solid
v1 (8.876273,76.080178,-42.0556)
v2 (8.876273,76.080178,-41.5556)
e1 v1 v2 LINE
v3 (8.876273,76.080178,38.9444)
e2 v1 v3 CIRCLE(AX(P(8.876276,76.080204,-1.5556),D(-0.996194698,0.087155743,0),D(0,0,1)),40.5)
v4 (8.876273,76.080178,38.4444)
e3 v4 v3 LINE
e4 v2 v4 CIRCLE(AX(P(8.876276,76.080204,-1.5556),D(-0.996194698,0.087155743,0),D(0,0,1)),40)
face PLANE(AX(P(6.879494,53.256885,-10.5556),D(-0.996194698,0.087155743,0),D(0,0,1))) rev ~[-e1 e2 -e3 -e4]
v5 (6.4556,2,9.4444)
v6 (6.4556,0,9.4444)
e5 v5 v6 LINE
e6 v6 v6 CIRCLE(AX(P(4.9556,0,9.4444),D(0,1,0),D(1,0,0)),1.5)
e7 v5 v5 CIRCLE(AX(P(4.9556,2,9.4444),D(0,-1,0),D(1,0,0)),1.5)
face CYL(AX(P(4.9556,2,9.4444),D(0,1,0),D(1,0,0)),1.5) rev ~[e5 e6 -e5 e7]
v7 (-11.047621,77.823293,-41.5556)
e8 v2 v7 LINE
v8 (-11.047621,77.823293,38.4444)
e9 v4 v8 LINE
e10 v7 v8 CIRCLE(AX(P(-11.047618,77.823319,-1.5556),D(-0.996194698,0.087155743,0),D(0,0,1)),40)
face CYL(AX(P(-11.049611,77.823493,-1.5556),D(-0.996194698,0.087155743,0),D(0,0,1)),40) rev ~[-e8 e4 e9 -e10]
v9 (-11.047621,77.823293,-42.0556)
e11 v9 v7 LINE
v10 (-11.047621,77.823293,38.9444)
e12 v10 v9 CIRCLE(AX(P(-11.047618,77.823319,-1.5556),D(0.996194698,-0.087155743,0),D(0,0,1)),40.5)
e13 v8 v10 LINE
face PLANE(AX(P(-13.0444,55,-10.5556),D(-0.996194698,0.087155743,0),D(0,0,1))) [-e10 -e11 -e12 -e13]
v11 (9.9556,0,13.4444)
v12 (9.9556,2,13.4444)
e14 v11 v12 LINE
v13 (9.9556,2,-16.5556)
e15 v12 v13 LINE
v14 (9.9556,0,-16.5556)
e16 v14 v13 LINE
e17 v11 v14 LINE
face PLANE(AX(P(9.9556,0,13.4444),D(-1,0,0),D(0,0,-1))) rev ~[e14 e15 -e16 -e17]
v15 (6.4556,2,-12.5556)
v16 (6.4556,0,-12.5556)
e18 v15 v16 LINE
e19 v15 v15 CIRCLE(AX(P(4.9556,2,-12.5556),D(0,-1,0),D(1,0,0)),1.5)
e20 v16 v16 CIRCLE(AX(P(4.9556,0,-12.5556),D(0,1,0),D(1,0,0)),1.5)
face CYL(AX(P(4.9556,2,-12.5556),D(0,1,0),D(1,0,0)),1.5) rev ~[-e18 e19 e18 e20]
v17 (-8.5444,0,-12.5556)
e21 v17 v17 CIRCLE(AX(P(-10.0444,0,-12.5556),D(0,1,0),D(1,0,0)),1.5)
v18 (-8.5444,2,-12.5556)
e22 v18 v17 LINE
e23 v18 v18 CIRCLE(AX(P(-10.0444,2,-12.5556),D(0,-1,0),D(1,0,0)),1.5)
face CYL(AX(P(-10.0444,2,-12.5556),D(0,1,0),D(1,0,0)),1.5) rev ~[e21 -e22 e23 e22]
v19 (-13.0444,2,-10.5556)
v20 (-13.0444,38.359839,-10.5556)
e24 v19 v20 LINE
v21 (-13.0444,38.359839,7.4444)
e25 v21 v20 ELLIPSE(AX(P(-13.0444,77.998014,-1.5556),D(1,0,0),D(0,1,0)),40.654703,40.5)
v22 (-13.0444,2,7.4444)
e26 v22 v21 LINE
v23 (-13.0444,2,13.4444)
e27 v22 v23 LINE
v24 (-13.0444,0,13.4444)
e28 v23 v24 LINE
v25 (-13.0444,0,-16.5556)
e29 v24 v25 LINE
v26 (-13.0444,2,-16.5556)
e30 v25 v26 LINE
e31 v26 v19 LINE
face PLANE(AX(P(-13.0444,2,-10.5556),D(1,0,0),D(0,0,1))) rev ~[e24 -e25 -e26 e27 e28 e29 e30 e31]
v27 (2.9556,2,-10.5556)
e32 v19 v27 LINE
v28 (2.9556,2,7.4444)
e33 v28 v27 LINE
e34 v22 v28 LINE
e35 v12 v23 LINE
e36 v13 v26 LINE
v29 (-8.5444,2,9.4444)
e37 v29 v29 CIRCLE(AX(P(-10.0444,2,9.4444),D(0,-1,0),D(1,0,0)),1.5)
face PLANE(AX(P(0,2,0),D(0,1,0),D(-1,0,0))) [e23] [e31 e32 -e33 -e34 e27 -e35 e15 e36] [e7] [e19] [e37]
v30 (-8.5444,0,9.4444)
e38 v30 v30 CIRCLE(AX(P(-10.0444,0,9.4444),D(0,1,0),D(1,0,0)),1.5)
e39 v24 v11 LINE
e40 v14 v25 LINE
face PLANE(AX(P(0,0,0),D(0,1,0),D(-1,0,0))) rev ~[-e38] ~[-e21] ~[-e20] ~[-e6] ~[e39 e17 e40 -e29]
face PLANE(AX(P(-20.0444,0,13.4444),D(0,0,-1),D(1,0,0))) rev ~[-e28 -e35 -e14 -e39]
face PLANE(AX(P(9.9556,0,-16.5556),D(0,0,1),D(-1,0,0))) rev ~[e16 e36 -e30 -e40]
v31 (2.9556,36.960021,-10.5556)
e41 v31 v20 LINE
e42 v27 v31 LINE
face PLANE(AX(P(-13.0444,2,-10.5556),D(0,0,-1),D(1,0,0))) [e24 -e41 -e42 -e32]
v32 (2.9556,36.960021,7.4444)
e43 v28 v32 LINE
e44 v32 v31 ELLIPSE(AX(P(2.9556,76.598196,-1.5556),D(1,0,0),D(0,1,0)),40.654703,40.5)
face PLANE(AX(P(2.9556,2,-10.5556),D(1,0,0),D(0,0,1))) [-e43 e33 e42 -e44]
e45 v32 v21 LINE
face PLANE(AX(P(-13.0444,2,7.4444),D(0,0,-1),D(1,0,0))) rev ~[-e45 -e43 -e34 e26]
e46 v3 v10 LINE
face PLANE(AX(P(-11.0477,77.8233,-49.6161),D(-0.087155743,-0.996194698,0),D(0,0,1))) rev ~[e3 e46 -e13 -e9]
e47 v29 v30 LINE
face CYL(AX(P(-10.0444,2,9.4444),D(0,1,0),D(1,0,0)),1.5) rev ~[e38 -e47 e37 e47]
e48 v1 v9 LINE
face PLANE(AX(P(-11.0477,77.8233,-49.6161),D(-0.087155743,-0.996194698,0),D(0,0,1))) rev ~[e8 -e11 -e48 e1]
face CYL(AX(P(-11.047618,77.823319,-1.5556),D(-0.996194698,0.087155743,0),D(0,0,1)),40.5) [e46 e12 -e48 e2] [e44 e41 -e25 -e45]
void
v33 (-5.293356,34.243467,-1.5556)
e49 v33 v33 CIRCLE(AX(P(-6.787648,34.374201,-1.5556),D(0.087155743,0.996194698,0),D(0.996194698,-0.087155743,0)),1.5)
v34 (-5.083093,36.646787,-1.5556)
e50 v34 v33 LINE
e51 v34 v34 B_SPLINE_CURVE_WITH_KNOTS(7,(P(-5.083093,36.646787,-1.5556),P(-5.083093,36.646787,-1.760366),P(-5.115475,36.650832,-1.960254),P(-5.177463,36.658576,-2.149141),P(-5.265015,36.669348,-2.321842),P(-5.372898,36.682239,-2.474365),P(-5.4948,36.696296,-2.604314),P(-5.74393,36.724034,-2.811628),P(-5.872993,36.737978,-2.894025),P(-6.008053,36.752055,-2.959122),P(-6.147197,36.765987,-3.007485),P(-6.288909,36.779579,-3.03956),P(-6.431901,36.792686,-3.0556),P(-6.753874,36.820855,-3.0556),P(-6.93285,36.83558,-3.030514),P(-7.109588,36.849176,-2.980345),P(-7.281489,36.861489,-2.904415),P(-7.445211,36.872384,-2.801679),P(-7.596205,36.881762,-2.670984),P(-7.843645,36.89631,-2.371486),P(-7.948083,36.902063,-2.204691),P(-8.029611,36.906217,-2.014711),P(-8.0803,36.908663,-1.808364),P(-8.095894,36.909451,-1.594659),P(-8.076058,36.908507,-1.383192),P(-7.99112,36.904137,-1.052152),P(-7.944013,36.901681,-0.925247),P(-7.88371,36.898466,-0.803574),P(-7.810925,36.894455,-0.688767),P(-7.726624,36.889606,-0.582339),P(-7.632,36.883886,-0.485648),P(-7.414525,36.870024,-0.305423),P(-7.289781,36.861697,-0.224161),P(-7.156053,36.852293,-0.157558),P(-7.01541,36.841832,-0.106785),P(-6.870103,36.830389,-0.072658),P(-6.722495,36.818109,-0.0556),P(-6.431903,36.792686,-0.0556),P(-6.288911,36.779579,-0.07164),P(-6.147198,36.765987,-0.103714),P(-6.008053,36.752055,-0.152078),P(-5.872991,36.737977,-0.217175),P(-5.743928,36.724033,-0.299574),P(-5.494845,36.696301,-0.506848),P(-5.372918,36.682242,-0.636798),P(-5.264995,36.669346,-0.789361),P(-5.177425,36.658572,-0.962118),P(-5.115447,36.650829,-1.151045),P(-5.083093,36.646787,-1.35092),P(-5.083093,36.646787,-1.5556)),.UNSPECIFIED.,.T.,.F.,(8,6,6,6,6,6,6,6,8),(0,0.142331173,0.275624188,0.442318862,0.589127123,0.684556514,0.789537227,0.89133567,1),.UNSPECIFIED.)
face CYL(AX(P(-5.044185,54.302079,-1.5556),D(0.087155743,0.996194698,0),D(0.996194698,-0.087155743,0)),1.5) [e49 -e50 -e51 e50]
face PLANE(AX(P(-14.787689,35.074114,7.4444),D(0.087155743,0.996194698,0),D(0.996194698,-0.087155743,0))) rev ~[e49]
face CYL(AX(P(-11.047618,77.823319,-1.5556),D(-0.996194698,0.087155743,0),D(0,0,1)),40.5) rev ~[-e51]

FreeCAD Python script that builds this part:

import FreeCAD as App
import Part
import Sketcher


def edges_at(feature, points):
    """Names of the edges that pass closest to the given points."""
    edges = feature.Shape.Edges
    near = lambda p: min(range(len(edges)), key=lambda i: edges[i].distToShape(Part.Vertex(*p))[0])
    return sorted({f"Edge{near(p) + 1}" for p in points})


def add_polygon(sketch, points):
    """Adds a closed chain of lines whose ends are joined by coincident constraints."""
    first, n = sketch.GeometryCount, len(points)
    for a, b in zip(points, points[1:] + points[:1]):
        sketch.addGeometry(Part.LineSegment(App.Vector(*a, 0), App.Vector(*b, 0)), False)
    for i in range(n):
        sketch.addConstraint(Sketcher.Constraint("Coincident", first + i, 2, first + (i + 1) % n, 1))

doc = App.newDocument("Part")
body = doc.addObject("PartDesign::Body", "Body")

# Sketch on XZ plane
sketch1 = body.newObject("Sketcher::SketchObject", "Sketch")
sketch1.AttachmentSupport = (doc.getObject("XZ_Plane"), [""])
sketch1.MapMode = "FlatFace"
add_polygon(sketch1, [(-20, -17), (-20, 13), (10, 13), (10, -17)])  # lines 0-3
sketch1.addConstraint(Sketcher.Constraint("Vertical", 0))
sketch1.addConstraint(Sketcher.Constraint("Horizontal", 1))
sketch1.addConstraint(Sketcher.Constraint("Vertical", 2))
sketch1.addConstraint(Sketcher.Constraint("Horizontal", 3))
sketch1.addConstraint(Sketcher.Constraint("Equal", 3, 0))
sketch1.addConstraint(Sketcher.Constraint("DistanceX", 1, 1, 1, 2, 30.0))
sketch1.addConstraint(Sketcher.Constraint("DistanceX", 0, 2, -1, 1, 20.0444))
sketch1.addConstraint(Sketcher.Constraint("DistanceY", -1, 1, 0, 2, 13.4444))
pad1 = body.newObject("PartDesign::Pad", "Pad")
pad1.Profile = sketch1
pad1.Length = 2
pad1.Reversed = True

# Sketch on XZ plane
sketch2 = body.newObject("Sketcher::SketchObject", "Sketch001")
sketch2.AttachmentSupport = (doc.getObject("XZ_Plane"), [""])
sketch2.MapMode = "FlatFace"
sketch2.AttachmentOffset = App.Placement(App.Vector(0, 0, -2), App.Rotation())
sketch2.addGeometry(Part.Circle(App.Vector(5, -12.6, 0), App.Vector(0, 0, 1), 1.5), False)
sketch2.addGeometry(Part.Circle(App.Vector(-10, -12.6, 0), App.Vector(0, 0, 1), 1.5), False)
sketch2.addGeometry(Part.Circle(App.Vector(-10, 9.4, 0), App.Vector(0, 0, 1), 1.5), False)
sketch2.addGeometry(Part.Circle(App.Vector(5, 9.4, 0), App.Vector(0, 0, 1), 1.5), False)
sketch2.addConstraint(Sketcher.Constraint("Equal", 0, 1))
sketch2.addConstraint(Sketcher.Constraint("Equal", 1, 2))
sketch2.addConstraint(Sketcher.Constraint("Equal", 2, 3))
sketch2.addConstraint(Sketcher.Constraint("Horizontal", 0, 3, 1, 3))
sketch2.addConstraint(Sketcher.Constraint("Horizontal", 2, 3, 3, 3))
sketch2.addConstraint(Sketcher.Constraint("Vertical", 1, 3, 2, 3))
sketch2.addConstraint(Sketcher.Constraint("Vertical", 0, 3, 3, 3))
sketch2.addConstraint(Sketcher.Constraint("Diameter", 0, 3.0))
sketch2.addConstraint(Sketcher.Constraint("DistanceX", 1, 3, 0, 3, 15.0))
sketch2.addConstraint(Sketcher.Constraint("DistanceY", 1, 3, 2, 3, 22.0))
sketch2.addConstraint(Sketcher.Constraint("DistanceX", -1, 1, 0, 3, 4.9556))
sketch2.addConstraint(Sketcher.Constraint("DistanceY", 0, 3, -1, 1, 12.5556))
pocket1 = body.newObject("PartDesign::Pocket", "Pocket")
pocket1.Profile = sketch2
pocket1.Length = 2
pocket1.Reversed = True

# Sketch on XZ plane
sketch3 = body.newObject("Sketcher::SketchObject", "Sketch002")
sketch3.AttachmentSupport = (doc.getObject("XZ_Plane"), [""])
sketch3.MapMode = "FlatFace"
sketch3.AttachmentOffset = App.Placement(App.Vector(0, 0, -2), App.Rotation())
add_polygon(sketch3, [(3, -11), (-13, -11), (-13, 7), (3, 7)])  # lines 0-3
sketch3.addConstraint(Sketcher.Constraint("Horizontal", 0))
sketch3.addConstraint(Sketcher.Constraint("Vertical", 1))
sketch3.addConstraint(Sketcher.Constraint("Horizontal", 2))
sketch3.addConstraint(Sketcher.Constraint("Vertical", 3))
sketch3.addConstraint(Sketcher.Constraint("DistanceX", 0, 2, 0, 1, 16.0))
sketch3.addConstraint(Sketcher.Constraint("DistanceY", 1, 1, 1, 2, 18.0))
sketch3.addConstraint(Sketcher.Constraint("DistanceX", 0, 2, -1, 1, 13.0444))
sketch3.addConstraint(Sketcher.Constraint("DistanceY", 0, 2, -1, 1, 10.5556))
pad2 = body.newObject("PartDesign::Pad", "Pad001")
pad2.Profile = sketch3
pad2.Length = 53
pad2.Reversed = True
doc.recompute()

chamfer = body.newObject("PartDesign::Chamfer", "Chamfer")
chamfer.Base = (pad2, edges_at(pad2, [(2.956, 55, -1.556)]))
chamfer.ChamferType = "Distance and Angle"
chamfer.Size = 16
chamfer.Angle = 5

# Sketch on XZ plane
sketch4 = body.newObject("Sketcher::SketchObject", "Sketch003")
sketch4.AttachmentSupport = (doc.getObject("XZ_Plane"), [""])
sketch4.MapMode = "FlatFace"
sketch4.AttachmentOffset = App.Placement(App.Vector(0, 0, -2), App.Rotation())
add_polygon(sketch4, [(-13, 16.2), (-13, -28.5), (-22.9, -28.5), (-22.9, -10.6), (-21, -10.6), (-21, 16.2)])  # lines 0-5
sketch4.addConstraint(Sketcher.Constraint("Vertical", 0))
sketch4.addConstraint(Sketcher.Constraint("Horizontal", 1))
sketch4.addConstraint(Sketcher.Constraint("Vertical", 2))
sketch4.addConstraint(Sketcher.Constraint("Horizontal", 3))
sketch4.addConstraint(Sketcher.Constraint("Vertical", 4))
sketch4.addConstraint(Sketcher.Constraint("Horizontal", 5))
sketch4.addConstraint(Sketcher.Constraint("DistanceX", 5, 1, 5, 2, 7.952))
sketch4.addConstraint(Sketcher.Constraint("DistanceY", 2, 1, 2, 2, 17.923))
sketch4.addConstraint(Sketcher.Constraint("DistanceX", 1, 2, 1, 1, 9.8093))
sketch4.addConstraint(Sketcher.Constraint("DistanceY", 0, 2, 0, 1, 44.6608))
sketch4.addConstraint(Sketcher.Constraint("DistanceY", -1, 1, 4, 2, 16.182))
sketch4.addConstraint(Sketcher.Constraint("DistanceX", 0, 2, -1, 1, 13.0444))
pocket2 = body.newObject("PartDesign::Pocket", "Pocket001")
pocket2.Profile = sketch4
pocket2.Length = 20
pocket2.Reversed = True

# Sketch on an angled plane
sketch5 = body.newObject("Sketcher::SketchObject", "Sketch004")
sketch5.Placement = App.Placement(App.Vector(-13.0444, 55, 7.4444), App.Rotation(App.Vector(0.996194698, -0.087155743, 0), App.Vector(0, 0, -1), App.Vector(0.087155743, 0.996194698, 0), "ZXY"))
sketch5.addGeometry(Part.Circle(App.Vector(8, 9, 0), App.Vector(0, 0, 1), 1.5), False)
sketch5.addConstraint(Sketcher.Constraint("Diameter", 0, 3.0))
sketch5.addConstraint(Sketcher.Constraint("DistanceY", -1, 1, 0, 3, 9.0))
sketch5.addConstraint(Sketcher.Constraint("DistanceX", -1, 1, 0, 3, 8.0306))
pocket3 = body.newObject("PartDesign::Pocket", "Pocket002")
pocket3.Profile = sketch5
pocket3.Length = 20

# Sketch on an angled plane
sketch6 = body.newObject("Sketcher::SketchObject", "Sketch005")
sketch6.Placement = App.Placement(App.Vector(-13.0444, 55, -10.5556), App.Rotation(App.Vector(0, 0, 1), App.Vector(0.087155743, 0.996194698, 0), App.Vector(-0.996194698, 0.087155743, 0), "ZXY"))
sketch6.addGeometry(Part.Circle(App.Vector(9, 0, 0), App.Vector(0, 0, 1), 15), False)
sketch6.addConstraint(Sketcher.Constraint("PointOnObject", 0, 3, -1))
sketch6.addConstraint(Sketcher.Constraint("Diameter", 0, 30.0))
sketch6.addConstraint(Sketcher.Constraint("DistanceX", -1, 1, 0, 3, 9.0))
pocket4 = body.newObject("PartDesign::Pocket", "Pocket003")
pocket4.Profile = sketch6
pocket4.Length = 200

# Sketch on an angled plane
sketch7 = body.newObject("Sketcher::SketchObject", "Sketch006")
sketch7.Placement = App.Placement(App.Vector(-13.0444, 55, -10.5556), App.Rotation(App.Vector(0, 0, 1), App.Vector(0.087155743, 0.996194698, 0), App.Vector(-0.996194698, 0.087155743, 0), "ZXY"))
sketch7.addGeometry(Part.Circle(App.Vector(9, 23, 0), App.Vector(0, 0, 1), 40), False)
sketch7.addConstraint(Sketcher.Constraint("Diameter", 0, 81.0))
sketch7.addConstraint(Sketcher.Constraint("DistanceX", -1, 1, 0, 3, 9.0))
sketch7.addConstraint(Sketcher.Constraint("DistanceY", -1, 1, 0, 3, 22.9105))
pad3 = body.newObject("PartDesign::Pad", "Pad002")
pad3.Profile = sketch7
pad3.Length = 20
pad3.Reversed = True

# Sketch on an angled plane
sketch8 = body.newObject("Sketcher::SketchObject", "Sketch007")
sketch8.Placement = App.Placement(App.Vector(-11.0477, 77.8233, -1.5556), App.Rotation(App.Vector(0, 0, 1), App.Vector(0.087155743, 0.996194698, 0), App.Vector(-0.996194698, 0.087155743, 0), "ZXY"))
add_polygon(sketch8, [(-48, 57), (-48, 0), (69, 0), (69, 57)])  # lines 0-3
sketch8.addConstraint(Sketcher.Constraint("Vertical", 0))
sketch8.addConstraint(Sketcher.Constraint("Horizontal", 1))
sketch8.addConstraint(Sketcher.Constraint("Vertical", 2))
sketch8.addConstraint(Sketcher.Constraint("Horizontal", 3))
sketch8.addConstraint(Sketcher.Constraint("PointOnObject", 0, 2, -1))
sketch8.addConstraint(Sketcher.Constraint("DistanceY", 0, 2, 0, 1, 57.161))
sketch8.addConstraint(Sketcher.Constraint("DistanceX", 1, 1, 1, 2, 116.7793))
sketch8.addConstraint(Sketcher.Constraint("DistanceX", 0, 2, -1, 1, 48.0605))
pocket5 = body.newObject("PartDesign::Pocket", "Pocket004")
pocket5.Profile = sketch8
pocket5.Type = "ThroughAll"

# Sketch on an angled plane
sketch9 = body.newObject("Sketcher::SketchObject", "Sketch008")
sketch9.Placement = App.Placement(App.Vector(-13.0444, 55, -10.5556), App.Rotation(App.Vector(0, 0, 1), App.Vector(0.087155743, 0.996194698, 0), App.Vector(-0.996194698, 0.087155743, 0), "ZXY"))
sketch9.addGeometry(Part.Circle(App.Vector(9, 23, 0), App.Vector(0, 0, 1), 40), False)
sketch9.addConstraint(Sketcher.Constraint("Diameter", 0, 80.0))
sketch9.addConstraint(Sketcher.Constraint("DistanceX", -1, 1, 0, 3, 9.0))
sketch9.addConstraint(Sketcher.Constraint("DistanceY", -1, 1, 0, 3, 22.9105))
pocket6 = body.newObject("PartDesign::Pocket", "Pocket005")
pocket6.Profile = sketch9
pocket6.Length = 20

doc.recompute()
